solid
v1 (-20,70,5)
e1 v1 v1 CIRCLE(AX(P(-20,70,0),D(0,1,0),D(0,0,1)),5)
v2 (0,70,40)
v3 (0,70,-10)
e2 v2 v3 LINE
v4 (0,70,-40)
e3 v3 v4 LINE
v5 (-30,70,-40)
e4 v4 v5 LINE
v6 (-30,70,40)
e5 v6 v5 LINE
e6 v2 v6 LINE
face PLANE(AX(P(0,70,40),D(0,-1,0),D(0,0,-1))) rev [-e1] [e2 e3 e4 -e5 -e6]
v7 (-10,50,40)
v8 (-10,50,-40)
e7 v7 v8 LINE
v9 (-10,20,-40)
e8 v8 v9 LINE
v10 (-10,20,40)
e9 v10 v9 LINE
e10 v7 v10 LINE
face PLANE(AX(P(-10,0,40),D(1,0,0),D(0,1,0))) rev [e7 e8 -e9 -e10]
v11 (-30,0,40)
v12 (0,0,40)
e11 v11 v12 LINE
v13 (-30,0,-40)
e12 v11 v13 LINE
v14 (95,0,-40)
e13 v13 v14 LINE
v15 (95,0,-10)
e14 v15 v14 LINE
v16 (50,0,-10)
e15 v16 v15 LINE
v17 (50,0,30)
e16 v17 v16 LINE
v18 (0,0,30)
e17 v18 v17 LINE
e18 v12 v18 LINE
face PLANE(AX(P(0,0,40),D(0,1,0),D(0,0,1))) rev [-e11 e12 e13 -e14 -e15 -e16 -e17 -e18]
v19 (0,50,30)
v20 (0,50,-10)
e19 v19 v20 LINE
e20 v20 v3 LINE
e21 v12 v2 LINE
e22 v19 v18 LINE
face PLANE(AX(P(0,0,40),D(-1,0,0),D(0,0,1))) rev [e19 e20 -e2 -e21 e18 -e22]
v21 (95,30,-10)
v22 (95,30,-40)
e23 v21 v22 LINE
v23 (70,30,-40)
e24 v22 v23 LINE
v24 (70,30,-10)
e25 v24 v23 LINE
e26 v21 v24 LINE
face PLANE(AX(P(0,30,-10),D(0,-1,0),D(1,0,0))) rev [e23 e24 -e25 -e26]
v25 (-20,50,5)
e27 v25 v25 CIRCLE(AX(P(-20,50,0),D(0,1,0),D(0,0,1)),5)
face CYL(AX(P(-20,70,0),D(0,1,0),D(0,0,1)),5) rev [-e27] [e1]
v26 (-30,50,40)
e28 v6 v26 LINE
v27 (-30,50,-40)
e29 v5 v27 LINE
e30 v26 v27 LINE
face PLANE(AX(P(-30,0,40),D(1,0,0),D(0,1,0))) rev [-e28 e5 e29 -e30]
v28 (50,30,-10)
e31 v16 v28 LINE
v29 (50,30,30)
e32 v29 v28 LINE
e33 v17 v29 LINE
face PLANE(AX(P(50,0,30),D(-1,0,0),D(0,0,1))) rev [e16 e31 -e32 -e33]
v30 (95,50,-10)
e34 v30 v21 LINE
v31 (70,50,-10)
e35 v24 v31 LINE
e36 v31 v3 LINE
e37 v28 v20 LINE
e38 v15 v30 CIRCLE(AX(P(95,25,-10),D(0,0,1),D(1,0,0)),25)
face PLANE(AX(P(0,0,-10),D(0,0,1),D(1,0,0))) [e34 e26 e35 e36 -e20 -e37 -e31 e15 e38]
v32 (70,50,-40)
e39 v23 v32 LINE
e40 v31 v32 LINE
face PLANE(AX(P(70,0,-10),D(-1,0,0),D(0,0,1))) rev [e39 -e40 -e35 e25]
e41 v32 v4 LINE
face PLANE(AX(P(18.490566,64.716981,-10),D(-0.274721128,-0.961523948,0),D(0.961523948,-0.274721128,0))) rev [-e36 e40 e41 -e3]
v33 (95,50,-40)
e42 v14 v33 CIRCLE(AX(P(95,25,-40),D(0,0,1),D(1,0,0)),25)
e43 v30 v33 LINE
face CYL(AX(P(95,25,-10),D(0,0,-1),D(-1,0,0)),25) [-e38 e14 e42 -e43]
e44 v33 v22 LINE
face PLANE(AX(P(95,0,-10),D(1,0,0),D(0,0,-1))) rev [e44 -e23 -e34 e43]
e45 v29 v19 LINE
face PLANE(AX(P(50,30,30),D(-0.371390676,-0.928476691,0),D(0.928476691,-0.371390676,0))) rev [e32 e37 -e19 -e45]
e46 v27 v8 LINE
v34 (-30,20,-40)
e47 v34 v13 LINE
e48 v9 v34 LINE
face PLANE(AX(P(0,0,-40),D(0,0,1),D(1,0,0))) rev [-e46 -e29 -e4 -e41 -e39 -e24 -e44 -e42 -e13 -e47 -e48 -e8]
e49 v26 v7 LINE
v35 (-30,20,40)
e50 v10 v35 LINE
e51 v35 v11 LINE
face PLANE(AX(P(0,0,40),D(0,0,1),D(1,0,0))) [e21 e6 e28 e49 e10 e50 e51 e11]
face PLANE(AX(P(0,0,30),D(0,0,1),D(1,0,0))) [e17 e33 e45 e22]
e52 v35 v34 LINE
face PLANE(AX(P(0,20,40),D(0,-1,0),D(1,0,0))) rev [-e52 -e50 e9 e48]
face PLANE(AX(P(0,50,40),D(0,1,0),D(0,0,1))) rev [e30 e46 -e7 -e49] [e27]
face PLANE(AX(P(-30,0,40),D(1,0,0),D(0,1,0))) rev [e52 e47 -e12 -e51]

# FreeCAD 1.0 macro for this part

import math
import FreeCAD as App
import Part
import Sketcher
from FreeCAD import Vector
Q = App.Units.Quantity

doc = App.newDocument("Part")
params = doc.addObject("Spreadsheet::Sheet", "Params")
for row, (alias, value) in enumerate([
    ("sketch1_width", "30 mm"),
    ("sketch1_width2", "20 mm"),
    ("pad1_length", "80 mm"),
    ("sketch2_radius", "25 mm"),
    ("sketch2_width", "30 mm"),
    ("sketch2_width2", "125 mm"),
    ("sketch2_width3", "25 mm"),
    ("pad2_length", "30 mm"),
    ("sketch3_width", "50 mm"),
    ("sketch3_height", "30 mm"),
    ("pad3_length", "40 mm"),
    ("sketch4_diameter", "10 mm"),
    ("hole_diameter", "10 mm"),
    ("hole_depth", "20 mm"),
], start=1):
    params.set(f"A{row}", alias)
    params.set(f"B{row}", "=" + value)
    params.setAlias(f"B{row}", alias)

body = doc.addObject("PartDesign::Body", "Body")

# Sketch on XY plane
sketch1 = doc.addObject("Sketcher::SketchObject", "Sketch")
body.addObject(sketch1)
sketch1.AttachmentSupport = (doc.XY_Plane, [""])
sketch1.MapMode = "FlatFace"
sketch1.addGeometry([
    Part.LineSegment(Vector(0, 0, 0), Vector(0, 70, 0)),  # 0
    Part.LineSegment(Vector(0, 70, 0), Vector(-30, 70, 0)),  # 1
    Part.LineSegment(Vector(-30, 70, 0), Vector(-30, 50, 0)),  # 2
    Part.LineSegment(Vector(-30, 50, 0), Vector(-10, 50, 0)),  # 3
    Part.LineSegment(Vector(-10, 50, 0), Vector(-10, 20, 0)),  # 4
    Part.LineSegment(Vector(-10, 20, 0), Vector(-30, 20, 0)),  # 5
    Part.LineSegment(Vector(-30, 20, 0), Vector(-30, 0, 0)),  # 6
    Part.LineSegment(Vector(-30, 0, 0), Vector(0, 0, 0)),  # 7
], False)
sketch1.addConstraint([
    Sketcher.Constraint("Coincident", 0, 2, 1, 1),
    Sketcher.Constraint("Coincident", 1, 2, 2, 1),
    Sketcher.Constraint("Coincident", 2, 2, 3, 1),
    Sketcher.Constraint("Coincident", 3, 2, 4, 1),
    Sketcher.Constraint("Coincident", 4, 2, 5, 1),
    Sketcher.Constraint("Coincident", 5, 2, 6, 1),
    Sketcher.Constraint("Coincident", 6, 2, 7, 1),
    Sketcher.Constraint("Coincident", 7, 2, 0, 1),
    Sketcher.Constraint("Vertical", 0),
    Sketcher.Constraint("Horizontal", 1),
    Sketcher.Constraint("Vertical", 2),
    Sketcher.Constraint("Horizontal", 3),
    Sketcher.Constraint("Vertical", 4),
    Sketcher.Constraint("Horizontal", 5),
    Sketcher.Constraint("Vertical", 6),
    Sketcher.Constraint("Horizontal", 7),
    Sketcher.Constraint("Coincident", 7, 2, -1, 1),
    Sketcher.Constraint("Vertical", 2, 2, 5, 2),
    Sketcher.Constraint("Equal", 5, 2),
    Sketcher.Constraint("Equal", 7, 4),
    Sketcher.Constraint("Equal", 2, 6),
    Sketcher.Constraint("DistanceX", 1, 2, 1, 1, Q("30 mm")),
    Sketcher.Constraint("DistanceX", 3, 1, 3, 2, Q("20 mm")),
])
sketch1.setExpression("Constraints[21]", "Params.sketch1_width")
sketch1.setExpression("Constraints[22]", "Params.sketch1_width2")
pad1 = doc.addObject("PartDesign::Pad", "Pad")
body.addObject(pad1)
pad1.Profile = sketch1
pad1.setExpression("Length", "Params.pad1_length")
pad1.Midplane = True

# Sketch on XY plane
sketch2 = doc.addObject("Sketcher::SketchObject", "Sketch001")
body.addObject(sketch2)
sketch2.AttachmentSupport = (doc.XY_Plane, [""])
sketch2.MapMode = "FlatFace"
sketch2.AttachmentOffset = App.Placement(Vector(0, 0, -40), App.Rotation())
sketch2.addGeometry([
    Part.LineSegment(Vector(0, 70, 0), Vector(-30, 70, 0)),  # 0
    Part.LineSegment(Vector(-30, 70, 0), Vector(-30, 50, 0)),  # 1
    Part.LineSegment(Vector(-30, 50, 0), Vector(-10, 50, 0)),  # 2
    Part.LineSegment(Vector(-10, 50, 0), Vector(-10, 20, 0)),  # 3
    Part.LineSegment(Vector(-10, 20, 0), Vector(-30, 20, 0)),  # 4
    Part.LineSegment(Vector(-30, 20, 0), Vector(-30, 0, 0)),  # 5
    Part.LineSegment(Vector(-30, 0, 0), Vector(95, 0, 0)),  # 6
    Part.ArcOfCircle(Part.Circle(Vector(95, 25, 0), Vector(0, 0, 1), 25), math.radians(-90), math.radians(90)),  # 7
    Part.LineSegment(Vector(95, 50, 0), Vector(95, 30, 0)),  # 8
    Part.LineSegment(Vector(95, 30, 0), Vector(70, 30, 0)),  # 9
    Part.LineSegment(Vector(70, 30, 0), Vector(70, 50, 0)),  # 10
    Part.LineSegment(Vector(70, 50, 0), Vector(0, 70, 0)),  # 11
], False)
sketch2.addConstraint([
    Sketcher.Constraint("Coincident", 0, 2, 1, 1),
    Sketcher.Constraint("Coincident", 1, 2, 2, 1),
    Sketcher.Constraint("Coincident", 2, 2, 3, 1),
    Sketcher.Constraint("Coincident", 3, 2, 4, 1),
    Sketcher.Constraint("Coincident", 4, 2, 5, 1),
    Sketcher.Constraint("Coincident", 5, 2, 6, 1),
    Sketcher.Constraint("Tangent", 6, 2, 7, 1),
    Sketcher.Constraint("Coincident", 7, 2, 8, 1),
    Sketcher.Constraint("Coincident", 8, 2, 9, 1),
    Sketcher.Constraint("Coincident", 9, 2, 10, 1),
    Sketcher.Constraint("Coincident", 10, 2, 11, 1),
    Sketcher.Constraint("Coincident", 11, 2, 0, 1),
    Sketcher.Constraint("Horizontal", 0),
    Sketcher.Constraint("Vertical", 1),
    Sketcher.Constraint("Horizontal", 2),
    Sketcher.Constraint("Vertical", 3),
    Sketcher.Constraint("Horizontal", 4),
    Sketcher.Constraint("Vertical", 5),
    Sketcher.Constraint("Horizontal", 6),
    Sketcher.Constraint("Vertical", 8),
    Sketcher.Constraint("Horizontal", 9),
    Sketcher.Constraint("Vertical", 10),
    Sketcher.Constraint("PointOnObject", 5, 2, -1),
    Sketcher.Constraint("PointOnObject", 11, 2, -2),
    Sketcher.Constraint("Horizontal", 2, 2, 7, 2),
    Sketcher.Constraint("Horizontal", 7, 2, 10, 2),
    Sketcher.Constraint("Vertical", 1, 2, 4, 2),
    Sketcher.Constraint("Vertical", 6, 2, 7, 2),
    Sketcher.Constraint("Equal", 4, 1),
    Sketcher.Constraint("Equal", 0, 3),
    Sketcher.Constraint("Equal", 1, 5),
    Sketcher.Constraint("Equal", 5, 8),
    Sketcher.Constraint("Radius", 7, Q("25 mm")),
    Sketcher.Constraint("DistanceX", 0, 2, 0, 1, Q("30 mm")),
    Sketcher.Constraint("DistanceX", 6, 1, 6, 2, Q("125 mm")),
    Sketcher.Constraint("DistanceX", 9, 2, 9, 1, Q("25 mm")),
])
sketch2.setExpression("Constraints[32]", "Params.sketch2_radius")
sketch2.setExpression("Constraints[33]", "Params.sketch2_width")
sketch2.setExpression("Constraints[34]", "Params.sketch2_width2")
sketch2.setExpression("Constraints[35]", "Params.sketch2_width3")
pad2 = doc.addObject("PartDesign::Pad", "Pad001")
body.addObject(pad2)
pad2.Profile = sketch2
pad2.setExpression("Length", "Params.pad2_length")

# Sketch on XY plane
sketch3 = doc.addObject("Sketcher::SketchObject", "Sketch002")
body.addObject(sketch3)
sketch3.AttachmentSupport = (doc.XY_Plane, [""])
sketch3.MapMode = "FlatFace"
sketch3.AttachmentOffset = App.Placement(Vector(0, 0, -10), App.Rotation())
sketch3.addGeometry([
    Part.LineSegment(Vector(0, 50, 0), Vector(0, 0, 0)),
    Part.LineSegment(Vector(0, 0, 0), Vector(50, 0, 0)),
    Part.LineSegment(Vector(50, 0, 0), Vector(50, 30, 0)),
    Part.LineSegment(Vector(50, 30, 0), Vector(0, 50, 0)),
], False)
sketch3.addConstraint([
    Sketcher.Constraint("Coincident", 0, 2, 1, 1),
    Sketcher.Constraint("Coincident", 1, 2, 2, 1),
    Sketcher.Constraint("Coincident", 2, 2, 3, 1),
    Sketcher.Constraint("Coincident", 3, 2, 0, 1),
    Sketcher.Constraint("Vertical", 0),
    Sketcher.Constraint("Horizontal", 1),
    Sketcher.Constraint("Vertical", 2),
    Sketcher.Constraint("Coincident", 0, 2, -1, 1),
    Sketcher.Constraint("Equal", 1, 0),
    Sketcher.Constraint("DistanceX", 1, 1, 1, 2, Q("50 mm")),
    Sketcher.Constraint("DistanceY", 2, 1, 2, 2, Q("30 mm")),
])
sketch3.setExpression("Constraints[9]", "Params.sketch3_width")
sketch3.setExpression("Constraints[10]", "Params.sketch3_height")
pad3 = doc.addObject("PartDesign::Pad", "Pad002")
body.addObject(pad3)
pad3.Profile = sketch3
pad3.setExpression("Length", "Params.pad3_length")

# Sketch on XZ plane
sketch4 = doc.addObject("Sketcher::SketchObject", "Sketch003")
body.addObject(sketch4)
sketch4.AttachmentSupport = (doc.XZ_Plane, [""])
sketch4.MapMode = "FlatFace"
sketch4.AttachmentOffset = App.Placement(Vector(0, 0, -70), App.Rotation())
sketch4.addGeometry(Part.Circle(Vector(-20, 0, 0), Vector(0, 0, 1), 5), False)
sketch4.addConstraint([
    Sketcher.Constraint("PointOnObject", 0, 3, -1),
    Sketcher.Constraint("Diameter", 0, Q("10 mm")),
    Sketcher.Constraint("DistanceX", 0, 3, -1, 1, Q("20 mm")),
])
sketch4.setExpression("Constraints[1]", "Params.sketch4_diameter")
doc.recompute()
hole = doc.addObject("PartDesign::Hole", "Hole")
body.addObject(hole)
hole.Profile = sketch4
hole.ThreadType = "None"
hole.setExpression("Diameter", "Params.hole_diameter")
hole.DepthType = "Dimension"
hole.setExpression("Depth", "Params.hole_depth")
hole.DrillPoint = "Flat"
hole.Reversed = True

doc.recompute()
